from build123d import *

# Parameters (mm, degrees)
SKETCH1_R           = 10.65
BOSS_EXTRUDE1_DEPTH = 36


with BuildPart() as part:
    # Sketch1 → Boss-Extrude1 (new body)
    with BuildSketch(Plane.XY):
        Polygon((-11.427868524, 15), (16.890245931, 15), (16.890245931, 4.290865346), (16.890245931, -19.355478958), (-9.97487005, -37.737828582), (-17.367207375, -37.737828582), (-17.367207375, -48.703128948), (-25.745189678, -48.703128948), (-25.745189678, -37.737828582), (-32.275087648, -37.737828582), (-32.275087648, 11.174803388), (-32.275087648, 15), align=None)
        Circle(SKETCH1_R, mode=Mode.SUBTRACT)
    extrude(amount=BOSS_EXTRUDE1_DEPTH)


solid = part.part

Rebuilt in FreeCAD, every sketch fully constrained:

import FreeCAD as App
import Part
import Sketcher
Q = App.Units.Quantity


def add_polygon(sketch, points):
    """Adds a closed chain of lines whose ends are joined by coincident constraints."""
    first, n = sketch.GeometryCount, len(points)
    for a, b in zip(points, points[1:] + points[:1]):
        sketch.addGeometry(Part.LineSegment(App.Vector(*a, 0), App.Vector(*b, 0)), False)
    for i in range(n):
        sketch.addConstraint(Sketcher.Constraint("Coincident", first + i, 2, first + (i + 1) % n, 1))

doc = App.newDocument("Part")
body = doc.addObject("PartDesign::Body", "Body")

# Sketch on XY plane
sketch1 = body.newObject("Sketcher::SketchObject", "Sketch")
sketch1.AttachmentSupport = (doc.getObject("XY_Plane"), [""])
sketch1.MapMode = "FlatFace"
add_polygon(sketch1, [(17, 15), (-32, 15), (-32, -38), (-26, -38), (-26, -49), (-17, -49), (-17, -38), (-10, -38), (17, -19)])  # lines 0-8
sketch1.addGeometry(Part.Circle(App.Vector(0, 0, 0), App.Vector(0, 0, 1), 11), False)  # 9
sketch1.addConstraint([
    Sketcher.Constraint("Horizontal", 0),
    Sketcher.Constraint("Vertical", 1),
    Sketcher.Constraint("Horizontal", 2),
    Sketcher.Constraint("Vertical", 3),
    Sketcher.Constraint("Horizontal", 4),
    Sketcher.Constraint("Vertical", 5),
    Sketcher.Constraint("Horizontal", 6),
    Sketcher.Constraint("Vertical", 8),
    Sketcher.Constraint("Coincident", 9, 3, -1, 1),
    Sketcher.Constraint("Horizontal", 2, 2, 5, 2),
    Sketcher.Constraint("Diameter", 9, Q("21.3 mm")),
    Sketcher.Constraint("DistanceY", -1, 1, 0, 2, Q("15 mm")),
    Sketcher.Constraint("DistanceY", 3, 2, 3, 1, Q("10.9653 mm")),
    Sketcher.Constraint("DistanceY", 1, 2, 1, 1, Q("52.737829 mm")),
    Sketcher.Constraint("DistanceY", 8, 1, 8, 2, Q("34.355479 mm")),
    Sketcher.Constraint("DistanceX", 0, 2, 0, 1, Q("49.165334 mm")),
    Sketcher.Constraint("DistanceX", 2, 1, 2, 2, Q("6.529898 mm")),
    Sketcher.Constraint("DistanceX", 4, 1, 4, 2, Q("8.377982 mm")),
    Sketcher.Constraint("DistanceX", 6, 1, 6, 2, Q("7.392337 mm")),
    Sketcher.Constraint("DistanceX", 2, 2, -1, 1, Q("25.74519 mm")),
])
pad1 = body.newObject("PartDesign::Pad", "Pad")
pad1.Profile = sketch1
pad1.Length = 36

doc.recompute()
